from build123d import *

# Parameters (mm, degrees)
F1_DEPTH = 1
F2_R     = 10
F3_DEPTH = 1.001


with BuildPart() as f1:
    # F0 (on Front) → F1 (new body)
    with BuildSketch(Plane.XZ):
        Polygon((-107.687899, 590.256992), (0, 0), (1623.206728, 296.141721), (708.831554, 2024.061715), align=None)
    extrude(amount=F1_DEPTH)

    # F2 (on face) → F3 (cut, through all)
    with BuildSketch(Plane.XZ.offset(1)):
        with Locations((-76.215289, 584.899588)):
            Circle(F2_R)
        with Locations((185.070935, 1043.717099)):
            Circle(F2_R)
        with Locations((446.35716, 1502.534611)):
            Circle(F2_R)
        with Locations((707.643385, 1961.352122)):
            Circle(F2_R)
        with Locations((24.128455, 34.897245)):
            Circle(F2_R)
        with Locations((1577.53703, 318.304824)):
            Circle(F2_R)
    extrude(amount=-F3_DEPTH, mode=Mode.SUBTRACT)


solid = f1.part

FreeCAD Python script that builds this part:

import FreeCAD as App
import Part
import Sketcher
from FreeCAD import Vector
Q = App.Units.Quantity

doc = App.newDocument("Part")
body = doc.addObject("PartDesign::Body", "Body")

# Sketch on XZ plane
sketch1 = body.newObject("Sketcher::SketchObject", "Sketch")
sketch1.AttachmentSupport = (doc.getObject("XZ_Plane"), [""])
sketch1.MapMode = "FlatFace"
sketch1.addGeometry([
    Part.LineSegment(Vector(-108, 590, 0), Vector(0, 0, 0)),
    Part.LineSegment(Vector(0, 0, 0), Vector(1623, 296, 0)),
    Part.LineSegment(Vector(1623, 296, 0), Vector(709, 2024, 0)),
    Part.LineSegment(Vector(709, 2024, 0), Vector(-108, 590, 0)),
], False)
sketch1.addConstraint([
    Sketcher.Constraint("Coincident", 0, 2, 1, 1),
    Sketcher.Constraint("Coincident", 1, 2, 2, 1),
    Sketcher.Constraint("Coincident", 2, 2, 3, 1),
    Sketcher.Constraint("Coincident", 3, 2, 0, 1),
    Sketcher.Constraint("Coincident", 0, 2, -1, 1),
    Sketcher.Constraint("Perpendicular", 0, 1),
    Sketcher.Constraint("Equal", 1, 3),
    Sketcher.Constraint("Distance", 0, Q("600 mm")),
    Sketcher.Constraint("Distance", 1, Q("1650 mm")),
    Sketcher.Constraint("DistanceX", 3, 2, -1, 1, Q("107.687899 mm")),
    Sketcher.Constraint("Distance", 2, Q("1954.93976 mm")),
])
pad1 = body.newObject("PartDesign::Pad", "Pad")
pad1.Profile = sketch1
pad1.Length = 1

# Sketch on XZ plane
sketch2 = body.newObject("Sketcher::SketchObject", "Sketch001")
sketch2.AttachmentSupport = (doc.getObject("XZ_Plane"), [""])
sketch2.MapMode = "FlatFace"
sketch2.AttachmentOffset = App.Placement(Vector(0, 0, 1), App.Rotation())
sketch2.addGeometry([
    Part.Circle(Vector(-76, 585, 0), Vector(0, 0, 1), 10),  # 0
    Part.Circle(Vector(185, 1044, 0), Vector(0, 0, 1), 10),  # 1
    Part.Circle(Vector(446, 1503, 0), Vector(0, 0, 1), 10),  # 2
    Part.Circle(Vector(708, 1961, 0), Vector(0, 0, 1), 10),  # 3
    Part.Circle(Vector(24, 35, 0), Vector(0, 0, 1), 10),  # 4
    Part.Circle(Vector(1578, 318, 0), Vector(0, 0, 1), 10),  # 5
], False)
sketch2.addConstraint([
    Sketcher.Constraint("Equal", 0, 1),
    Sketcher.Constraint("Equal", 1, 2),
    Sketcher.Constraint("Equal", 2, 3),
    Sketcher.Constraint("Equal", 3, 4),
    Sketcher.Constraint("Equal", 4, 5),
    Sketcher.Constraint("Diameter", 0, Q("20 mm")),
    Sketcher.Constraint("DistanceY", -1, 1, 1, 3, Q("1043.717099 mm")),
    Sketcher.Constraint("DistanceY", 5, 3, 3, 3, Q("1643.047298 mm")),
    Sketcher.Constraint("DistanceX", 0, 3, -1, 1, Q("76.215289 mm")),
    Sketcher.Constraint("DistanceY", -1, 1, 0, 3, Q("584.899588 mm")),
    Sketcher.Constraint("DistanceX", -1, 1, 2, 3, Q("446.35716 mm")),
    Sketcher.Constraint("DistanceY", -1, 1, 2, 3, Q("1502.534611 mm")),
    Sketcher.Constraint("DistanceY", -1, 1, 3, 3, Q("1961.352122 mm")),
    Sketcher.Constraint("DistanceX", -1, 1, 5, 3, Q("1577.53703 mm")),
    Sketcher.Constraint("DistanceX", 1, 3, 3, 3, Q("522.57245 mm")),
    Sketcher.Constraint("DistanceX", 4, 3, 1, 3, Q("160.94248 mm")),
    Sketcher.Constraint("DistanceY", 4, 3, 5, 3, Q("283.407579 mm")),
    Sketcher.Constraint("DistanceX", -1, 1, 1, 3, Q("185.070935 mm")),
])
pocket1 = body.newObject("PartDesign::Pocket", "Pocket")
pocket1.Profile = sketch2
pocket1.Type = "ThroughAll"

doc.recompute()
